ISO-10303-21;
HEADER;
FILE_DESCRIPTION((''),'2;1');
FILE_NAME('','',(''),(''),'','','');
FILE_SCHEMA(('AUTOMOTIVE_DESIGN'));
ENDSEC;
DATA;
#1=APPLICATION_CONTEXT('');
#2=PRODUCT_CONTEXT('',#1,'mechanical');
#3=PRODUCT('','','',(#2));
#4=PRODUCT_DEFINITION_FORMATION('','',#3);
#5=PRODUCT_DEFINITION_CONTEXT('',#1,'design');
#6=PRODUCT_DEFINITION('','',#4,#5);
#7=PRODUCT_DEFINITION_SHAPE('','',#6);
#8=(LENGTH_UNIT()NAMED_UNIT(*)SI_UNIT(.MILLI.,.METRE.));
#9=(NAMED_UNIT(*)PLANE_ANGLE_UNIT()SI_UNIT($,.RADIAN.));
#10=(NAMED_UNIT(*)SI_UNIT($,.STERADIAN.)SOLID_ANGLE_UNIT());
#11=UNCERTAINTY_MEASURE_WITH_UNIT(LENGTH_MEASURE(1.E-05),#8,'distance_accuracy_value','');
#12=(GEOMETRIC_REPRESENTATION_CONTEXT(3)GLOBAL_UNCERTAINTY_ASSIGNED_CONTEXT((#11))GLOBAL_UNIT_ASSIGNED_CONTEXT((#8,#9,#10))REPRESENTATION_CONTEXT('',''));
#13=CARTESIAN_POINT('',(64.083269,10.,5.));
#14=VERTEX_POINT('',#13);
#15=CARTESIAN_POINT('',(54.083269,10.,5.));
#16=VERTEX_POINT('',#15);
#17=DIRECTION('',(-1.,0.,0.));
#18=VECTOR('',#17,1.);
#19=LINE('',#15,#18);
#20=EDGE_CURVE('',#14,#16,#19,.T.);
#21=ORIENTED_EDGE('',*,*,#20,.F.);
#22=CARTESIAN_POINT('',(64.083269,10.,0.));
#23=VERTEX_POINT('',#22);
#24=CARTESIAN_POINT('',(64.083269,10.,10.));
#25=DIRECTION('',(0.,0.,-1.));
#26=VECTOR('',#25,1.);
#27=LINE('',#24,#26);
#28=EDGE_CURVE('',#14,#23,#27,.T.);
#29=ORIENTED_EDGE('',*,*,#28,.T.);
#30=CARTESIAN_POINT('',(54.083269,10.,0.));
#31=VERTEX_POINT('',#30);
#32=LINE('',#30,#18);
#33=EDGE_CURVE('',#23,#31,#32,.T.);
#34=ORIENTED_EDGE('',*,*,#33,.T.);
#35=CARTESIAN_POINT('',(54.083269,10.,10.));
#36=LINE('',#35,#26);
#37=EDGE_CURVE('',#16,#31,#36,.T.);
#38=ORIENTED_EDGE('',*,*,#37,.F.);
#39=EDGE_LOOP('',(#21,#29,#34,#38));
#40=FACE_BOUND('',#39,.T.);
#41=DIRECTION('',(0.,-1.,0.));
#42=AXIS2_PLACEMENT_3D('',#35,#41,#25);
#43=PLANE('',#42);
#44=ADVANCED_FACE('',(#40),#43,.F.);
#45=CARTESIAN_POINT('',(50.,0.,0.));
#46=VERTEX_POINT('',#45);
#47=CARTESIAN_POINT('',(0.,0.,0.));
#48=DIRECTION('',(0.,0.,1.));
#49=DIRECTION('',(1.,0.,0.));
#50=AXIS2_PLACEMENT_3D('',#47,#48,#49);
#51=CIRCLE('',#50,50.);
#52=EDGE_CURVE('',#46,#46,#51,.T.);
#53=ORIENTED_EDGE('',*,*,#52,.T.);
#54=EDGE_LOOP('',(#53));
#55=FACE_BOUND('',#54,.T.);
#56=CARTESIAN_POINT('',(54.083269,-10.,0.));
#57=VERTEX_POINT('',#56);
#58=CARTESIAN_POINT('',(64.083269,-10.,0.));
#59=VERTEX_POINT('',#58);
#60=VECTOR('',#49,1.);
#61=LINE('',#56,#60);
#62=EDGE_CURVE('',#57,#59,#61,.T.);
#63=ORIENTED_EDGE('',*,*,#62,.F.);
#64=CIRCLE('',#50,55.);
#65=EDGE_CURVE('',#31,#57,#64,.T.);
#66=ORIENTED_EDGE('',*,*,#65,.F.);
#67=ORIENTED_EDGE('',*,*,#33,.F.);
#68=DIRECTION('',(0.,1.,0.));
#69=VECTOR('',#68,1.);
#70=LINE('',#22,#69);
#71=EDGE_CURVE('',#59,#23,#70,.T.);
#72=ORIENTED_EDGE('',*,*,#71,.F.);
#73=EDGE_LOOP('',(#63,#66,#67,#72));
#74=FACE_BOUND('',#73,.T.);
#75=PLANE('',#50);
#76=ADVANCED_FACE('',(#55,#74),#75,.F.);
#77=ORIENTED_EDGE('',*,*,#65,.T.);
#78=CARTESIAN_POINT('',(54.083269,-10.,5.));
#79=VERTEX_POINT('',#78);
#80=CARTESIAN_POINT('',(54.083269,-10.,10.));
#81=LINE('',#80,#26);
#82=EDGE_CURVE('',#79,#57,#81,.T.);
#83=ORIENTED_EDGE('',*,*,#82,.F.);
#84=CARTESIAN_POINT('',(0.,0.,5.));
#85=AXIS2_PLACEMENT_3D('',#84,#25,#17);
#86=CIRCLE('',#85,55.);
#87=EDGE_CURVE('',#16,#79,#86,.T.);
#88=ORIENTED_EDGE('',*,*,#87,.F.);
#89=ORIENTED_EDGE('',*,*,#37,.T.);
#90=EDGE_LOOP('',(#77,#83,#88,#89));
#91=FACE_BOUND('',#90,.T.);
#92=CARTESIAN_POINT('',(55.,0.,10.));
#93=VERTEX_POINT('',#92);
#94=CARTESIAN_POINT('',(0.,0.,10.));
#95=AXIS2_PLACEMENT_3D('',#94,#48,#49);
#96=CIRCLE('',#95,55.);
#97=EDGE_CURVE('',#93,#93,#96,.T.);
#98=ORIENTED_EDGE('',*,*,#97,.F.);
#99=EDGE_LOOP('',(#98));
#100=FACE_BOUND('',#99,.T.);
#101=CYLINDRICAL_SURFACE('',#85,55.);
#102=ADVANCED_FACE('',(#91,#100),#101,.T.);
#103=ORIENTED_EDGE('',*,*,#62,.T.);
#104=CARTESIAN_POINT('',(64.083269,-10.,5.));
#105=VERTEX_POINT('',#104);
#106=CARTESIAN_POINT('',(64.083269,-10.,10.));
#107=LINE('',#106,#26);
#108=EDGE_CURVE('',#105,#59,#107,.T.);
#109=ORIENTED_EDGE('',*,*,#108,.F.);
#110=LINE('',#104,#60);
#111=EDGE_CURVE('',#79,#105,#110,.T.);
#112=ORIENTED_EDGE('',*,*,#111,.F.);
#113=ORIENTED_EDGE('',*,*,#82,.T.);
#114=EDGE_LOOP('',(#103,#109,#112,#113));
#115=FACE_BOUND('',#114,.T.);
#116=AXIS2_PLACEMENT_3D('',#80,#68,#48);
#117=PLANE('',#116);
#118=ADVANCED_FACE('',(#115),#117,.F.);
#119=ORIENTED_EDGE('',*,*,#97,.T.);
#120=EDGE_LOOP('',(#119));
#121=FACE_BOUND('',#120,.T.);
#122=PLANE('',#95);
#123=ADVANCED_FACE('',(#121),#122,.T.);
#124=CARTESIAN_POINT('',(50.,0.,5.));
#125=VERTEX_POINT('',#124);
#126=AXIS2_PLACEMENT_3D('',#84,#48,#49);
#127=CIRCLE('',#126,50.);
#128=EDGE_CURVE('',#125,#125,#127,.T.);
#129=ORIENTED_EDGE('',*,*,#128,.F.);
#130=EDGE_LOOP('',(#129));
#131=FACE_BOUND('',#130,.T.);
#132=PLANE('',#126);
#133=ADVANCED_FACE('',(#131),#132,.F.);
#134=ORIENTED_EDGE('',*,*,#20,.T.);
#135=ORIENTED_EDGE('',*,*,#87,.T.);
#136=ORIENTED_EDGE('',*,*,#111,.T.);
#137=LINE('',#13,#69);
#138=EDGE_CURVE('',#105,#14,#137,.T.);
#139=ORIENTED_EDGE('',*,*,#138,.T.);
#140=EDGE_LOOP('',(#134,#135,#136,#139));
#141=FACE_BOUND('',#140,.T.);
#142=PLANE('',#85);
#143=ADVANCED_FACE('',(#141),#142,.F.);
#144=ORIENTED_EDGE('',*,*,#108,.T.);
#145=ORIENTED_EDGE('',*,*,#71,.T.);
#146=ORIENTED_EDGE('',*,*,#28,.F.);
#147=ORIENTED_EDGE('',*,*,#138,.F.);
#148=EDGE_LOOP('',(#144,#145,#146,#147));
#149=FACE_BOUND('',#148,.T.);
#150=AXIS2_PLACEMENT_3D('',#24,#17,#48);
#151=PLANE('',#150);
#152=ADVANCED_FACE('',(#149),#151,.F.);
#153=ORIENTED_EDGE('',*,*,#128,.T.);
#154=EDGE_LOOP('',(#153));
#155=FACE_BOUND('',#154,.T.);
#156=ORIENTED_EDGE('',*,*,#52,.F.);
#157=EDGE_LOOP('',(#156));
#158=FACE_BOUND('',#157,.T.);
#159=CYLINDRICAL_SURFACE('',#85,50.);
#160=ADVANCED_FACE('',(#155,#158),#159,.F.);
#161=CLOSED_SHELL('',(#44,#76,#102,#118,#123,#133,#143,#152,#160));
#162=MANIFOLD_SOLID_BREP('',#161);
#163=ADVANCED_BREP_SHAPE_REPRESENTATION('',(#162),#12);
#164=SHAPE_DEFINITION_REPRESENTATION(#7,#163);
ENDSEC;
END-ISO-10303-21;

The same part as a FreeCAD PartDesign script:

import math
import FreeCAD as App
import Part
import Sketcher

V = App.Vector
Q = App.Units.Quantity


def add_polygon(sketch, points):
    """Adds a closed chain of lines whose ends are joined by coincident constraints."""
    first, n = sketch.GeometryCount, len(points)
    for a, b in zip(points, points[1:] + points[:1]):
        sketch.addGeometry(Part.LineSegment(App.Vector(*a, 0), App.Vector(*b, 0)), False)
    for i in range(n):
        sketch.addConstraint(Sketcher.Constraint("Coincident", first + i, 2, first + (i + 1) % n, 1))

doc = App.newDocument("Part")
params = doc.addObject("Spreadsheet::Sheet", "Params")
for row, (alias, value) in enumerate([
    ("sketch1_diameter", "110 mm"),
    ("sketch1_diameter2", "100 mm"),
    ("pad1_length", "5 mm"),
    ("sketch2_diameter", "110 mm"),
    ("pad2_length", "5 mm"),
    ("sketch3_width", "10 mm"),
    ("sketch3_height", "20 mm"),
    ("pad3_length", "10 mm"),
    ("sketch4_radius", "55 mm"),
    ("sketch4_width", "10 mm"),
    ("sketch4_height", "20 mm"),
    ("pocket1_length", "5 mm"),
], start=1):
    params.set(f"A{row}", alias)
    params.set(f"B{row}", "=" + value)
    params.setAlias(f"B{row}", alias)

body = doc.addObject("PartDesign::Body", "Body")

# Sketch on XY plane
sketch1 = doc.addObject("Sketcher::SketchObject", "Sketch")
body.addObject(sketch1)
sketch1.AttachmentSupport = (doc.XY_Plane, [""])
sketch1.MapMode = "FlatFace"
sketch1.addGeometry([
    Part.Circle(V(0, 0, 0), V(0, 0, 1), 55),
    Part.Circle(V(0, 0, 0), V(0, 0, 1), 50),
], False)
sketch1.addConstraint([
    Sketcher.Constraint("Coincident", 0, 3, -1, 1),
    Sketcher.Constraint("Coincident", 1, 3, -1, 1),
    Sketcher.Constraint("Diameter", 0, Q("110 mm")),
    Sketcher.Constraint("Diameter", 1, Q("100 mm")),
])
sketch1.setExpression("Constraints[2]", "Params.sketch1_diameter")
sketch1.setExpression("Constraints[3]", "Params.sketch1_diameter2")
pad1 = doc.addObject("PartDesign::Pad", "Pad")
body.addObject(pad1)
pad1.Profile = sketch1
pad1.setExpression("Length", "Params.pad1_length")

# Sketch on XY plane
sketch2 = doc.addObject("Sketcher::SketchObject", "Sketch001")
body.addObject(sketch2)
sketch2.AttachmentSupport = (doc.XY_Plane, [""])
sketch2.MapMode = "FlatFace"
sketch2.AttachmentOffset = App.Placement(V(0, 0, 5), App.Rotation())
sketch2.addGeometry(Part.Circle(V(0, 0, 0), V(0, 0, 1), 55), False)
sketch2.addConstraint([
    Sketcher.Constraint("Coincident", 0, 3, -1, 1),
    Sketcher.Constraint("Diameter", 0, Q("110 mm")),
])
sketch2.setExpression("Constraints[1]", "Params.sketch2_diameter")
pad2 = doc.addObject("PartDesign::Pad", "Pad001")
body.addObject(pad2)
pad2.Profile = sketch2
pad2.setExpression("Length", "Params.pad2_length")

# Sketch on XY plane
sketch3 = doc.addObject("Sketcher::SketchObject", "Sketch002")
body.addObject(sketch3)
sketch3.AttachmentSupport = (doc.XY_Plane, [""])
sketch3.MapMode = "FlatFace"
add_polygon(sketch3, [(54, 10), (54, -10), (64, -10), (64, 10)])  # lines 0-3
sketch3.addConstraint([
    Sketcher.Constraint("Vertical", 0),
    Sketcher.Constraint("Horizontal", 1),
    Sketcher.Constraint("Vertical", 2),
    Sketcher.Constraint("Horizontal", 3),
    Sketcher.Constraint("DistanceX", 1, 1, 1, 2, Q("10 mm")),
    Sketcher.Constraint("DistanceY", 0, 2, 0, 1, Q("20 mm")),
    Sketcher.Constraint("DistanceY", 0, 2, -1, 1, Q("10 mm")),
    Sketcher.Constraint("DistanceX", -1, 1, 0, 2, Q("54.083269 mm")),
])
sketch3.setExpression("Constraints[8]", "Params.sketch3_width")
sketch3.setExpression("Constraints[9]", "Params.sketch3_height")
pad3 = doc.addObject("PartDesign::Pad", "Pad002")
body.addObject(pad3)
pad3.Profile = sketch3
pad3.setExpression("Length", "Params.pad3_length")

# Sketch on XY plane
sketch4 = doc.addObject("Sketcher::SketchObject", "Sketch003")
body.addObject(sketch4)
sketch4.AttachmentSupport = (doc.XY_Plane, [""])
sketch4.MapMode = "FlatFace"
sketch4.AttachmentOffset = App.Placement(V(0, 0, 5), App.Rotation())
sketch4.addGeometry([
    Part.LineSegment(V(64, 10, 0), V(54, 10, 0)),
    Part.ArcOfCircle(Part.Circle(V(0, 0, 0), V(0, 0, 1), 55), math.radians(-10), math.radians(10)),
    Part.LineSegment(V(54, -10, 0), V(64, -10, 0)),
    Part.LineSegment(V(64, -10, 0), V(64, 10, 0)),
], False)
sketch4.addConstraint([
    Sketcher.Constraint("Coincident", 0, 2, 1, 2),
    Sketcher.Constraint("Coincident", 1, 1, 2, 1),
    Sketcher.Constraint("Coincident", 2, 2, 3, 1),
    Sketcher.Constraint("Coincident", 3, 2, 0, 1),
    Sketcher.Constraint("Horizontal", 0),
    Sketcher.Constraint("Horizontal", 2),
    Sketcher.Constraint("Vertical", 3),
    Sketcher.Constraint("Coincident", 1, 3, -1, 1),
    Sketcher.Constraint("Vertical", 0, 2, 1, 1),
    Sketcher.Constraint("Radius", 1, Q("55 mm")),
    Sketcher.Constraint("DistanceX", 0, 2, 0, 1, Q("10 mm")),
    Sketcher.Constraint("DistanceY", 3, 1, 3, 2, Q("20 mm")),
])
sketch4.setExpression("Constraints[9]", "Params.sketch4_radius")
sketch4.setExpression("Constraints[10]", "Params.sketch4_width")
sketch4.setExpression("Constraints[11]", "Params.sketch4_height")
pocket1 = doc.addObject("PartDesign::Pocket", "Pocket")
body.addObject(pocket1)
pocket1.Profile = sketch4
pocket1.setExpression("Length", "Params.pocket1_length")
pocket1.Reversed = True

doc.recompute()
